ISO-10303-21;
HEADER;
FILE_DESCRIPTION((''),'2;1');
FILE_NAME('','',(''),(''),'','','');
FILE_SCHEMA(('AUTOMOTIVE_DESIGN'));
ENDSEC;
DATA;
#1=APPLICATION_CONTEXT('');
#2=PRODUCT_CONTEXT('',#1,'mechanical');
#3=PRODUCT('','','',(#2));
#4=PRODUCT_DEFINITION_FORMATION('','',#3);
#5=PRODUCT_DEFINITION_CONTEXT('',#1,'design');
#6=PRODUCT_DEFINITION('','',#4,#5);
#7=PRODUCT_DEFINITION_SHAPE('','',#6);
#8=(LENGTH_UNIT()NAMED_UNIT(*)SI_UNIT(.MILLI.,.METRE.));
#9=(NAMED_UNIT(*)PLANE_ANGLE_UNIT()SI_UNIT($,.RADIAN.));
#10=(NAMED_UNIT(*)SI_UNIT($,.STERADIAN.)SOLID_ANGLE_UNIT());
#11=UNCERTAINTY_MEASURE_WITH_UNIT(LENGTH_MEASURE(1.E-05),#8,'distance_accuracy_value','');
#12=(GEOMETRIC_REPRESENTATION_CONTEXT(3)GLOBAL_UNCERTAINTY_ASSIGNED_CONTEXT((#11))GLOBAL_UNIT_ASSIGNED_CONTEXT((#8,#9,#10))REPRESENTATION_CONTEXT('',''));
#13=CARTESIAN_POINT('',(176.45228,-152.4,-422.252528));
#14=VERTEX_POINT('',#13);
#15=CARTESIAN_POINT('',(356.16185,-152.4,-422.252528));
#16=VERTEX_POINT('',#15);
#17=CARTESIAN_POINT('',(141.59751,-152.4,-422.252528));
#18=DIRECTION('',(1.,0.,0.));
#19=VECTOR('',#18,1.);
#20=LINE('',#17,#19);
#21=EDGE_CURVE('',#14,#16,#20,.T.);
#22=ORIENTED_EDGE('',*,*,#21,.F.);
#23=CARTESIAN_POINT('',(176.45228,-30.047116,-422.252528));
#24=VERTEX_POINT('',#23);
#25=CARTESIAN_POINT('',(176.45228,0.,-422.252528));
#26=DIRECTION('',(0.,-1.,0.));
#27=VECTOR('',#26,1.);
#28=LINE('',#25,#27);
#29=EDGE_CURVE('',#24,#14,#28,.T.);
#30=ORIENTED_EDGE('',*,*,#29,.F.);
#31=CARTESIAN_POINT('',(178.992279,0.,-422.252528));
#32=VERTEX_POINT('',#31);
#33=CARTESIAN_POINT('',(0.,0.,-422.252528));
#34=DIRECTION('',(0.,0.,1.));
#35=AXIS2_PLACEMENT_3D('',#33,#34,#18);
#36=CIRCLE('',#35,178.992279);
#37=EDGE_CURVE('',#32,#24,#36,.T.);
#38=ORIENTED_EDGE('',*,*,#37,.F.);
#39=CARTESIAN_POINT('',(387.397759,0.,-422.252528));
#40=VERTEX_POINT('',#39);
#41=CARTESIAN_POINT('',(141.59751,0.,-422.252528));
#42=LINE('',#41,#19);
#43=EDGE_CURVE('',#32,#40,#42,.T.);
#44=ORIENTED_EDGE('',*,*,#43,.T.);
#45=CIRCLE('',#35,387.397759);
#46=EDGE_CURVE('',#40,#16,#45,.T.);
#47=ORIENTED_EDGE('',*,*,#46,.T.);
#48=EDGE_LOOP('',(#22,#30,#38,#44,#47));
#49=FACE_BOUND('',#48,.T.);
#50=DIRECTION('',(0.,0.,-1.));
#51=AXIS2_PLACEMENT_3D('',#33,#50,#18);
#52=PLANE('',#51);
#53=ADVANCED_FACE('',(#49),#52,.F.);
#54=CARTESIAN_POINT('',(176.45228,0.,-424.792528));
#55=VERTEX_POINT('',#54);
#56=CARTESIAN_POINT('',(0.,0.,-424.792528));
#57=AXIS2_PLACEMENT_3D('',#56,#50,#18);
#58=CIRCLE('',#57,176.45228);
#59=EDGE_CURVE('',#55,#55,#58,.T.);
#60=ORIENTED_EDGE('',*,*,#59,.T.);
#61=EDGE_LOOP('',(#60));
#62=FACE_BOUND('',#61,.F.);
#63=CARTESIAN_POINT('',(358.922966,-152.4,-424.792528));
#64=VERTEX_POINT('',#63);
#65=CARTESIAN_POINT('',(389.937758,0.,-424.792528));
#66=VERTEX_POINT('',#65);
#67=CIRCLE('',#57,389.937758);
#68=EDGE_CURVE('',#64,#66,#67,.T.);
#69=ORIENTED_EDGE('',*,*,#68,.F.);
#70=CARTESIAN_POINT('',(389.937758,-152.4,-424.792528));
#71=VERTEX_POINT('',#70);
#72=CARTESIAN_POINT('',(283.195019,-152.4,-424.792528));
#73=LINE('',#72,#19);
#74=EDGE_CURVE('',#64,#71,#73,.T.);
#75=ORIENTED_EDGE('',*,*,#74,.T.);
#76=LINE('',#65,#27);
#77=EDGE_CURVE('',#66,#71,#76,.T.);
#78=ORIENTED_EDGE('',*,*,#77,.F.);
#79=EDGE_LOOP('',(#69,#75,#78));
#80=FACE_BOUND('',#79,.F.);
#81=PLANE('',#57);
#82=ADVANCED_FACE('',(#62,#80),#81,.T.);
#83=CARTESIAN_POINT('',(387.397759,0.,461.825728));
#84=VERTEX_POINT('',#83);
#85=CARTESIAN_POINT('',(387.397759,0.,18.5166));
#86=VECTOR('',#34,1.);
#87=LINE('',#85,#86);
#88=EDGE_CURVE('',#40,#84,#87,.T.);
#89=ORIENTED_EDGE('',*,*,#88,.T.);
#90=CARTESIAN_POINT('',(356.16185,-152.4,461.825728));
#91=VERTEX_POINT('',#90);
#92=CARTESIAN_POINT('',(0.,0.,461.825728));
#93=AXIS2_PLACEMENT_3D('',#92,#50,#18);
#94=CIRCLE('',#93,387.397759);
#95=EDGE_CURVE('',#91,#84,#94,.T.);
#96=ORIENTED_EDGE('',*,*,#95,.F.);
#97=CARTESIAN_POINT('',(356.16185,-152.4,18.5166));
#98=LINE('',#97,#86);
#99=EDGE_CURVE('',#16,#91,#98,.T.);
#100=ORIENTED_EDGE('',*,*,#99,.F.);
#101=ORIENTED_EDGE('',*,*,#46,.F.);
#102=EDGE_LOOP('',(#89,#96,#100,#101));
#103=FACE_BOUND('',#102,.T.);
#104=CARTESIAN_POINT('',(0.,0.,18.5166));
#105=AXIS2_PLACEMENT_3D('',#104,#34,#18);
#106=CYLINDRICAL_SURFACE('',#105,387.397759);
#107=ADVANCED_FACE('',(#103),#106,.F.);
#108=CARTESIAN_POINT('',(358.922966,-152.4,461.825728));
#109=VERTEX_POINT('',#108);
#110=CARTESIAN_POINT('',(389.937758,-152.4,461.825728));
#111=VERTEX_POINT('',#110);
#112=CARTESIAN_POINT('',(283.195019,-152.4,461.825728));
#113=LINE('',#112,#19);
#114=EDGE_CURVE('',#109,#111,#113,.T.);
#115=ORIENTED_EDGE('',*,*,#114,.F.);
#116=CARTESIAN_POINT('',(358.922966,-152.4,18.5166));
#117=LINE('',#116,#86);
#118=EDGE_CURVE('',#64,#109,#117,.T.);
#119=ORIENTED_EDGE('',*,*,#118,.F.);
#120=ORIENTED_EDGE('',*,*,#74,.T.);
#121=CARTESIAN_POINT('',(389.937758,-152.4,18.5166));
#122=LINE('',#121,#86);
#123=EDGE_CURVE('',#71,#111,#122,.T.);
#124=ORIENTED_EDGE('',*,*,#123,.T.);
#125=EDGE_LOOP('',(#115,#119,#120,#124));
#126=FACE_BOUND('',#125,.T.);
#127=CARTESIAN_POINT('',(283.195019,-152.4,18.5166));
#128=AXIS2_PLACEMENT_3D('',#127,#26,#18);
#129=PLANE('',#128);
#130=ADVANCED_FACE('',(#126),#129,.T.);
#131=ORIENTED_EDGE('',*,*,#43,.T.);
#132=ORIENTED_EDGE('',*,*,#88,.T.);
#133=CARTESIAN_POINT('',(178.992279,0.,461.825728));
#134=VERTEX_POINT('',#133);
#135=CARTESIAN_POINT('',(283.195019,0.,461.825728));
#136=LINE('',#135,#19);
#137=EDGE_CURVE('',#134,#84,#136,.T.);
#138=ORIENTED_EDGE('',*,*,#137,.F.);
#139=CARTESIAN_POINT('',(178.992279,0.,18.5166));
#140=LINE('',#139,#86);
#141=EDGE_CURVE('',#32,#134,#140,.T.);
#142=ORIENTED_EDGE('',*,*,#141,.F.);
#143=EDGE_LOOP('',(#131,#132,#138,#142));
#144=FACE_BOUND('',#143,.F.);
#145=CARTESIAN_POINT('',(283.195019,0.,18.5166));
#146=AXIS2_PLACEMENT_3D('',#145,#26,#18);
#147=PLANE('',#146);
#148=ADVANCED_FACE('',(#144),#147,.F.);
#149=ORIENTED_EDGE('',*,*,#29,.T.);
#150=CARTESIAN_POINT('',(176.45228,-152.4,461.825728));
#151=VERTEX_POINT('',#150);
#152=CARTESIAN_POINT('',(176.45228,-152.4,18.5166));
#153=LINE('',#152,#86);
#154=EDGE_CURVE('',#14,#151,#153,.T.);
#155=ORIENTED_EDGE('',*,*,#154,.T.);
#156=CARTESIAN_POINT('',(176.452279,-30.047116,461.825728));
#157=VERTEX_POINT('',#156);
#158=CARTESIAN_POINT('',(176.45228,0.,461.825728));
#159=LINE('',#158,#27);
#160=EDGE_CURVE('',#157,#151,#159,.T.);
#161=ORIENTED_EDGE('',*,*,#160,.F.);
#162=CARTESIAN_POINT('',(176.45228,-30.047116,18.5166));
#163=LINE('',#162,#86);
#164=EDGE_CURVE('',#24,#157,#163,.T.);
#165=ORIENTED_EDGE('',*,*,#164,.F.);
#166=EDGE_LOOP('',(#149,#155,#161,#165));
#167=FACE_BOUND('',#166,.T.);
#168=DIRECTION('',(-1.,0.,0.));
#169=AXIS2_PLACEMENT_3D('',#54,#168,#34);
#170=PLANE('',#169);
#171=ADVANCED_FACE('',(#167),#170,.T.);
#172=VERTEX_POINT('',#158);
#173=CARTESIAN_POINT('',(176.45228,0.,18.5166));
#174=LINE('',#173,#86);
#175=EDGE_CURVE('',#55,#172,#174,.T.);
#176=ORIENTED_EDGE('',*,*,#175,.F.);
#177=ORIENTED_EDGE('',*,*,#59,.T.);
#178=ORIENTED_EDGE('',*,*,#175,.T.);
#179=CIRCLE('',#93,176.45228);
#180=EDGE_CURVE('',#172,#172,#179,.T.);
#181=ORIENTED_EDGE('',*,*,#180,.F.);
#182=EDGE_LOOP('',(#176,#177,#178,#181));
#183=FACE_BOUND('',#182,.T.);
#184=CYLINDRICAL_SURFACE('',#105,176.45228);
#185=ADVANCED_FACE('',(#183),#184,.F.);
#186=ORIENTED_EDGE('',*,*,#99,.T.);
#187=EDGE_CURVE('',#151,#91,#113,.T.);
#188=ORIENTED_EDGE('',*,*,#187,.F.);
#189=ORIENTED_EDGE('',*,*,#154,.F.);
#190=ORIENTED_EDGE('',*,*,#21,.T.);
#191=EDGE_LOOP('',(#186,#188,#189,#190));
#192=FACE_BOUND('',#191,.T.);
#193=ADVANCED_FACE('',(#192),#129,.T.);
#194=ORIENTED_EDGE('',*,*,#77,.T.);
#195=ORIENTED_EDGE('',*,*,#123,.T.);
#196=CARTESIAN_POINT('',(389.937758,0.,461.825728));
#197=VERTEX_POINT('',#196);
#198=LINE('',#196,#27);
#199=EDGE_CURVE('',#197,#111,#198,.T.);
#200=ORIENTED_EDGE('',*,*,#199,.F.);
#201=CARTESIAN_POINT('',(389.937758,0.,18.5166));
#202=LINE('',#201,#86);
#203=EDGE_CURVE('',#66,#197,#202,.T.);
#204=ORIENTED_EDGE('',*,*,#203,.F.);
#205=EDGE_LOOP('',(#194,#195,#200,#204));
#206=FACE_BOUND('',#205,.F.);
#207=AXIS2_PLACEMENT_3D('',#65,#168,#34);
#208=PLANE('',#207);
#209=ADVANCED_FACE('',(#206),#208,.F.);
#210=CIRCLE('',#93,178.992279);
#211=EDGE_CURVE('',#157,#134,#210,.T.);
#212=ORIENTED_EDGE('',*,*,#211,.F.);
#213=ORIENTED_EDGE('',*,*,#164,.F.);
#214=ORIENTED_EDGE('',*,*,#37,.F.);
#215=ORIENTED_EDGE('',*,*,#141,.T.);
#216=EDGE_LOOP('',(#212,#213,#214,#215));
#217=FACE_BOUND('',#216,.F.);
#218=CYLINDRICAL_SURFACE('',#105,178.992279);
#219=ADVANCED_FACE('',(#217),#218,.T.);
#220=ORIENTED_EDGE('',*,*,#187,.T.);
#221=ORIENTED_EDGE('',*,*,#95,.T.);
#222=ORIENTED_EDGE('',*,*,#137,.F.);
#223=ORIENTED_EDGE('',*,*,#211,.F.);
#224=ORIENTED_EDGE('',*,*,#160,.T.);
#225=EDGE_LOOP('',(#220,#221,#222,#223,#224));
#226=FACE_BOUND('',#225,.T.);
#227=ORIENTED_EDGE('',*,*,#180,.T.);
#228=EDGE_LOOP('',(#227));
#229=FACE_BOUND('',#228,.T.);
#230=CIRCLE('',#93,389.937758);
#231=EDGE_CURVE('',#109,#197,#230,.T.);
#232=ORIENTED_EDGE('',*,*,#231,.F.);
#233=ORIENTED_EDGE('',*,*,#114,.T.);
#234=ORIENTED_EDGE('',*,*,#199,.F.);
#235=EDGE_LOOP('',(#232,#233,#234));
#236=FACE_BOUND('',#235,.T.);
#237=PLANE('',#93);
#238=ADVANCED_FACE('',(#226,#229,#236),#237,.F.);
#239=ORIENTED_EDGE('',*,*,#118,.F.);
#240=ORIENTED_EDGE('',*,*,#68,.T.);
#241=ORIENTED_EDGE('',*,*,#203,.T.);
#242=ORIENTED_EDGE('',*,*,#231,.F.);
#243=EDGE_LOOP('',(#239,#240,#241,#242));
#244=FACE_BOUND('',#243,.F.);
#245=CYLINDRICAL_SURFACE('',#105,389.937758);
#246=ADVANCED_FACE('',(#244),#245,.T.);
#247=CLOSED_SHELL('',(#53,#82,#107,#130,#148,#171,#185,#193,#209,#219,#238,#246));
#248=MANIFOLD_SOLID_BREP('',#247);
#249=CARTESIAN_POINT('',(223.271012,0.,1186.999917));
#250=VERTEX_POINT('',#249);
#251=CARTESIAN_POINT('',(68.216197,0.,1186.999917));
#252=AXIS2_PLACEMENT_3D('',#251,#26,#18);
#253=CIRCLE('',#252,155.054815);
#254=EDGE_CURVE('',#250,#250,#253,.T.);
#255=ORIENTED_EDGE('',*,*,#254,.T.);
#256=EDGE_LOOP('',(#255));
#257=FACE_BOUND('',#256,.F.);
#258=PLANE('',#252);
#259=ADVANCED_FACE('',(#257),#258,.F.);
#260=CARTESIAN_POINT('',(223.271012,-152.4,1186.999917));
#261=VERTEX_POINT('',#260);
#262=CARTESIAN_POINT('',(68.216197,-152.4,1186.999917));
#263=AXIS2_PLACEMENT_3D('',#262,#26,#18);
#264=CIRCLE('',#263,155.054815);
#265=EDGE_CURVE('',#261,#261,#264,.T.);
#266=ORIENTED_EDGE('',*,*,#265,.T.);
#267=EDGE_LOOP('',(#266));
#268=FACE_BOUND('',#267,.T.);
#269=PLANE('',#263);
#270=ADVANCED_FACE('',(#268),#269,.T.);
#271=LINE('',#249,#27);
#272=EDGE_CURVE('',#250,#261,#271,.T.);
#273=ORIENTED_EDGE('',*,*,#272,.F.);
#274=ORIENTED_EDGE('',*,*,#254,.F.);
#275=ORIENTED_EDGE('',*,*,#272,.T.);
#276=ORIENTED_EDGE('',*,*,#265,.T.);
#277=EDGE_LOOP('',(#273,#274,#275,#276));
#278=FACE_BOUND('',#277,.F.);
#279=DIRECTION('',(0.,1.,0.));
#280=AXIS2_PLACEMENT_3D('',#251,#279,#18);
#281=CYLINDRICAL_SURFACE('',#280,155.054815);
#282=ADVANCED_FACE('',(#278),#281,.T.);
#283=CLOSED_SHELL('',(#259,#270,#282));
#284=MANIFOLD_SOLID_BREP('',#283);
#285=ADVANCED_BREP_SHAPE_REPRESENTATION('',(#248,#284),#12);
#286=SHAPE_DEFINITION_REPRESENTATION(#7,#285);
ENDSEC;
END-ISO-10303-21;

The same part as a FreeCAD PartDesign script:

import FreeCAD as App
import Part
import Sketcher

V = App.Vector
Q = App.Units.Quantity


def faces_at(feature, points):
    """Names of the faces that lie closest to the given points."""
    faces = feature.Shape.Faces
    near = lambda p: min(range(len(faces)), key=lambda i: faces[i].distToShape(Part.Vertex(*p))[0])
    return sorted({f"Face{near(p) + 1}" for p in points})

doc = App.newDocument("Part")
body = doc.addObject("PartDesign::Body", "Body")
body.AllowCompound = True

# Sketch on XZ plane
sketch1 = doc.addObject("Sketcher::SketchObject", "Sketch")
body.addObject(sketch1)
sketch1.AttachmentSupport = (doc.XZ_Plane, [""])
sketch1.MapMode = "FlatFace"
sketch1.addGeometry([
    Part.LineSegment(V(176.45228, 461.825728, 0), V(176.45228, -424.792528, 0)),
    Part.LineSegment(V(176.45228, -424.792528, 0), V(389.937758, -424.792528, 0)),
    Part.LineSegment(V(389.937758, -424.792528, 0), V(389.937758, 461.825728, 0)),
    Part.LineSegment(V(389.937758, 461.825728, 0), V(176.45228, 461.825728, 0)),
], False)
sketch1.addConstraint([
    Sketcher.Constraint("Coincident", 0, 2, 1, 1),
    Sketcher.Constraint("Coincident", 1, 2, 2, 1),
    Sketcher.Constraint("Coincident", 2, 2, 3, 1),
    Sketcher.Constraint("Coincident", 3, 2, 0, 1),
    Sketcher.Constraint("Vertical", 0),
    Sketcher.Constraint("Horizontal", 1),
    Sketcher.Constraint("Vertical", 2),
    Sketcher.Constraint("Horizontal", 3),
    Sketcher.Constraint("DistanceX", 1, 1, 1, 2, Q("213.485479 mm")),
    Sketcher.Constraint("DistanceY", 0, 2, 0, 1, Q("886.618256 mm")),
    Sketcher.Constraint("DistanceX", -1, 1, 0, 2, Q("176.45228 mm")),
    Sketcher.Constraint("DistanceY", 0, 2, -1, 1, Q("424.792528 mm")),
])
revolution = doc.addObject("PartDesign::Revolution", "Revolution")
body.addObject(revolution)
revolution.Profile = sketch1
revolution.ReferenceAxis = (sketch1, ["V_Axis"])
revolution.Angle = 360
doc.recompute()

thickness = doc.addObject("PartDesign::Thickness", "Thickness")
body.addObject(thickness)
thickness.Base = (revolution, faces_at(revolution, [(155.975, 155.975, 461.826)]))
thickness.Value = Q("0.1 in")
thickness.Reversed = True
thickness.Join = "Arc"

# Sketch on XZ plane
sketch2 = doc.addObject("Sketcher::SketchObject", "Sketch001")
body.addObject(sketch2)
sketch2.AttachmentSupport = (doc.XZ_Plane, [""])
sketch2.MapMode = "FlatFace"
sketch2.addGeometry([
    Part.LineSegment(V(176.45228, 461.825728, 0), V(176.45228, -424.792528, 0)),  # 0
    Part.LineSegment(V(176.45228, -424.792528, 0), V(389.937758, -424.792528, 0)),  # 1
    Part.LineSegment(V(389.937758, -424.792528, 0), V(389.937758, 461.825728, 0)),  # 2
    Part.LineSegment(V(389.937758, 461.825728, 0), V(176.45228, 461.825728, 0)),  # 3
    Part.Circle(V(68.216197, 1186.999917, 0), V(0, 0, 1), 155.054815),  # 4
], False)
sketch2.addConstraint([
    Sketcher.Constraint("Coincident", 0, 2, 1, 1),
    Sketcher.Constraint("Coincident", 1, 2, 2, 1),
    Sketcher.Constraint("Coincident", 2, 2, 3, 1),
    Sketcher.Constraint("Coincident", 3, 2, 0, 1),
    Sketcher.Constraint("Vertical", 0),
    Sketcher.Constraint("Horizontal", 1),
    Sketcher.Constraint("Vertical", 2),
    Sketcher.Constraint("Horizontal", 3),
    Sketcher.Constraint("Diameter", 4, Q("310.10963 mm")),
    Sketcher.Constraint("DistanceX", 1, 1, 1, 2, Q("213.485479 mm")),
    Sketcher.Constraint("DistanceY", 0, 2, 0, 1, Q("886.618256 mm")),
    Sketcher.Constraint("DistanceX", -1, 1, 0, 2, Q("176.45228 mm")),
    Sketcher.Constraint("DistanceY", 0, 2, -1, 1, Q("424.792528 mm")),
    Sketcher.Constraint("DistanceX", 4, 3, 1, 2, Q("321.721562 mm")),
    Sketcher.Constraint("DistanceY", 2, 2, 4, 3, Q("725.174189 mm")),
])
pad1 = doc.addObject("PartDesign::Pad", "Pad")
body.addObject(pad1)
pad1.Profile = sketch2
pad1.Length = Q("6 in")

doc.recompute()
